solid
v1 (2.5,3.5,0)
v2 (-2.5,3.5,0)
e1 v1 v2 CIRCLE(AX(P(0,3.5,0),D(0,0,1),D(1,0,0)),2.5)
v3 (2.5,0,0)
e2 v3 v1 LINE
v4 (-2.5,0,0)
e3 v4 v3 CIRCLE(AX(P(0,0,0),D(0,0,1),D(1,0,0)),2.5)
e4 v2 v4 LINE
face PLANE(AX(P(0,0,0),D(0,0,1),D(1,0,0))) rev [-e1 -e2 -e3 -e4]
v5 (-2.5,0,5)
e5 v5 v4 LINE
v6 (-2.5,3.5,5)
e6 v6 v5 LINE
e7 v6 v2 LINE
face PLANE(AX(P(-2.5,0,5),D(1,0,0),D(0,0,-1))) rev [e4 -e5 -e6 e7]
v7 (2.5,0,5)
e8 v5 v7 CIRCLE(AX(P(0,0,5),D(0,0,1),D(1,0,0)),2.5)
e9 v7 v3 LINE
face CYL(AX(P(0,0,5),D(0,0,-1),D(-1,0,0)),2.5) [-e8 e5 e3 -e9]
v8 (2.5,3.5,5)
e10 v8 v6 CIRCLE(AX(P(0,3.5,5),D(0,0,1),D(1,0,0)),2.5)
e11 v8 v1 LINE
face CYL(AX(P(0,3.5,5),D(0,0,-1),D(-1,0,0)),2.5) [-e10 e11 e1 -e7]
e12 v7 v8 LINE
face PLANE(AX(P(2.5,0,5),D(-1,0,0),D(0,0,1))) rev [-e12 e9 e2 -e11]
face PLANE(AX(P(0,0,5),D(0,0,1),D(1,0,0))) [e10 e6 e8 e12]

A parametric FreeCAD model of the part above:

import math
import FreeCAD as App
import Part
import Sketcher

V = App.Vector

doc = App.newDocument("Part")
body = doc.addObject("PartDesign::Body", "Body")

sketch1 = body.newObject("Sketcher::SketchObject", "Sketch")
sketch1.AttachmentSupport = (doc.getObject("XY_Plane"), [""])
sketch1.MapMode = "FlatFace"
sketch1.addGeometry([
    Part.LineSegment(V(-2.5, 3.5, 0), V(-2.5, 0, 0)),
    Part.ArcOfCircle(Part.Circle(V(0, 0, 0), V(0, 0, 1), 2.5), math.radians(180), math.radians(360)),
    Part.LineSegment(V(2.5, 0, 0), V(2.5, 3.5, 0)),
    Part.ArcOfCircle(Part.Circle(V(0, 3.5, 0), V(0, 0, 1), 2.5), math.radians(0), math.radians(180)),
], False)
sketch1.addConstraint([
    Sketcher.Constraint("Tangent", 0, 2, 1, 1),
    Sketcher.Constraint("Tangent", 1, 2, 2, 1),
    Sketcher.Constraint("Tangent", 2, 2, 3, 1),
    Sketcher.Constraint("Tangent", 3, 2, 0, 1),
    Sketcher.Constraint("Vertical", 0),
    Sketcher.Constraint("Vertical", 2),
    Sketcher.Constraint("Coincident", 1, 3, -1, 1),
    Sketcher.Constraint("Radius", 1, 2.5),
    Sketcher.Constraint("DistanceY", 0, 2, 0, 1, 3.5),
])
pad1 = body.newObject("PartDesign::Pad", "Pad")
pad1.Profile = sketch1
pad1.Length = 5

doc.recompute()
